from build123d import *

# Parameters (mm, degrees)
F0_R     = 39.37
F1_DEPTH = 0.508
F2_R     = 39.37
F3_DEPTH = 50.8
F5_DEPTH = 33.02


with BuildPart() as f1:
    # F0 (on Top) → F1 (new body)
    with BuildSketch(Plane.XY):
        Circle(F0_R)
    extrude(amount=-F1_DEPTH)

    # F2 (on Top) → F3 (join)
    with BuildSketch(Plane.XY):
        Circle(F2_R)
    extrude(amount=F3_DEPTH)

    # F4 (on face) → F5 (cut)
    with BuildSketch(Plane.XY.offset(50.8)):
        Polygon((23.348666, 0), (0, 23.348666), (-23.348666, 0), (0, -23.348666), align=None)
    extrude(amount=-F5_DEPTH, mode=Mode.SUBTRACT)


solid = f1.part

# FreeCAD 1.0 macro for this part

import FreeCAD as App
import Part
import Sketcher
Q = App.Units.Quantity

doc = App.newDocument("Part")
body = doc.addObject("PartDesign::Body", "Body")

# Sketch on XY plane
sketch1 = body.newObject("Sketcher::SketchObject", "Sketch")
sketch1.AttachmentSupport = (doc.getObject("XY_Plane"), [""])
sketch1.MapMode = "FlatFace"
sketch1.addGeometry(Part.Circle(App.Vector(0, 0, 0), App.Vector(0, 0, 1), 39.37), False)
sketch1.addConstraint([
    Sketcher.Constraint("Coincident", 0, 3, -1, 1),
    Sketcher.Constraint("Diameter", 0, Q("3.1 in")),
])
pad1 = body.newObject("PartDesign::Pad", "Pad")
pad1.Profile = sketch1
pad1.Length = Q("0.02 in")
pad1.Reversed = True

# Sketch on XY plane
sketch2 = body.newObject("Sketcher::SketchObject", "Sketch001")
sketch2.AttachmentSupport = (doc.getObject("XY_Plane"), [""])
sketch2.MapMode = "FlatFace"
sketch2.addGeometry(Part.Circle(App.Vector(0, 0, 0), App.Vector(0, 0, 1), 39.37), False)
sketch2.addConstraint([
    Sketcher.Constraint("Coincident", 0, 3, -1, 1),
    Sketcher.Constraint("Diameter", 0, Q("3.1 in")),
])
pad2 = body.newObject("PartDesign::Pad", "Pad001")
pad2.Profile = sketch2
pad2.Length = Q("2 in")

# Sketch on XY plane
sketch3 = body.newObject("Sketcher::SketchObject", "Sketch002")
sketch3.AttachmentSupport = (doc.getObject("XY_Plane"), [""])
sketch3.MapMode = "FlatFace"
sketch3.AttachmentOffset = App.Placement(App.Vector(0, 0, 2 * 25.4), App.Rotation())
sketch3.addGeometry([
    Part.LineSegment(App.Vector(23.348666, 0, 0), App.Vector(0, 23.348666, 0)),
    Part.LineSegment(App.Vector(0, 23.348666, 0), App.Vector(-23.348666, 0, 0)),
    Part.LineSegment(App.Vector(-23.348666, 0, 0), App.Vector(0, -23.348666, 0)),
    Part.LineSegment(App.Vector(0, -23.348666, 0), App.Vector(23.348666, 0, 0)),
], False)
sketch3.addConstraint([
    Sketcher.Constraint("Coincident", 0, 2, 1, 1),
    Sketcher.Constraint("Coincident", 1, 2, 2, 1),
    Sketcher.Constraint("Coincident", 2, 2, 3, 1),
    Sketcher.Constraint("Coincident", 3, 2, 0, 1),
    Sketcher.Constraint("Symmetric", 0, 2, 2, 2, -1, 1),
    Sketcher.Constraint("Symmetric", 1, 2, 3, 2, -1, 1),
    Sketcher.Constraint("PointOnObject", 0, 2, -2),
    Sketcher.Constraint("PointOnObject", 1, 2, -1),
    Sketcher.Constraint("Perpendicular", 0, 1),
    Sketcher.Constraint("Distance", 0, Q("1.3 in")),
])
pocket1 = body.newObject("PartDesign::Pocket", "Pocket")
pocket1.Profile = sketch3
pocket1.Length = Q("1.3 in")

doc.recompute()
